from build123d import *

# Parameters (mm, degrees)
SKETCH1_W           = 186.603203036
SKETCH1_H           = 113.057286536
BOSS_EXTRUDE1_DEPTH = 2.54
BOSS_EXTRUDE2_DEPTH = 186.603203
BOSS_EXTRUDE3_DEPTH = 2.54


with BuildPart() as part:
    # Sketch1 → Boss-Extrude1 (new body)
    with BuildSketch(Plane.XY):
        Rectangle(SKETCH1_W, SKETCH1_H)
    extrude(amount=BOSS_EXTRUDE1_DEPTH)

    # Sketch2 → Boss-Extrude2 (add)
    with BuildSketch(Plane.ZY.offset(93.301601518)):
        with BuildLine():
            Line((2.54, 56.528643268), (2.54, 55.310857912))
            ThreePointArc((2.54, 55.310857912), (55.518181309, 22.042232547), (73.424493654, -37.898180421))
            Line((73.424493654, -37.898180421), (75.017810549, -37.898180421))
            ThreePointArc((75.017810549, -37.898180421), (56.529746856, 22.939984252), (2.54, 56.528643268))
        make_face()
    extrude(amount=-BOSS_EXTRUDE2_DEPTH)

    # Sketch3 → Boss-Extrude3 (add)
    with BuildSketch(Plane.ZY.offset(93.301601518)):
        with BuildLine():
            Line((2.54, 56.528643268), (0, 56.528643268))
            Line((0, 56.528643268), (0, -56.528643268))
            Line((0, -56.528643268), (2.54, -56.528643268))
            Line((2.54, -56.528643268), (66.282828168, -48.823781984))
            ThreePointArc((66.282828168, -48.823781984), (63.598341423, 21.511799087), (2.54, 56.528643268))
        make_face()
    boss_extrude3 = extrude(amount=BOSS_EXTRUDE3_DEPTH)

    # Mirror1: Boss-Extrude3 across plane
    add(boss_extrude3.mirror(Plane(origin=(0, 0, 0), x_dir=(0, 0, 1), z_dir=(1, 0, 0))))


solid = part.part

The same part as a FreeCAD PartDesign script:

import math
import FreeCAD as App
import Part
import Sketcher

V = App.Vector
Q = App.Units.Quantity


def add_polygon(sketch, points):
    """Adds a closed chain of lines whose ends are joined by coincident constraints."""
    first, n = sketch.GeometryCount, len(points)
    for a, b in zip(points, points[1:] + points[:1]):
        sketch.addGeometry(Part.LineSegment(App.Vector(*a, 0), App.Vector(*b, 0)), False)
    for i in range(n):
        sketch.addConstraint(Sketcher.Constraint("Coincident", first + i, 2, first + (i + 1) % n, 1))

doc = App.newDocument("Part")
body = doc.addObject("PartDesign::Body", "Body")

# Sketch on XY plane
sketch1 = body.newObject("Sketcher::SketchObject", "Sketch")
sketch1.AttachmentSupport = (doc.getObject("XY_Plane"), [""])
sketch1.MapMode = "FlatFace"
add_polygon(sketch1, [(-93, 57), (-93, -57), (93, -57), (93, 57)])  # lines 0-3
sketch1.addConstraint(Sketcher.Constraint("Vertical", 0))
sketch1.addConstraint(Sketcher.Constraint("Horizontal", 1))
sketch1.addConstraint(Sketcher.Constraint("Vertical", 2))
sketch1.addConstraint(Sketcher.Constraint("Horizontal", 3))
sketch1.addConstraint(Sketcher.Constraint("Symmetric", 0, 2, 2, 2, -1, 1))
sketch1.addConstraint(Sketcher.Constraint("DistanceX", 0, 2, -1, 1, Q("93.301602 mm")))
sketch1.addConstraint(Sketcher.Constraint("DistanceY", 0, 2, 0, 1, Q("113.057287 mm")))
pad1 = body.newObject("PartDesign::Pad", "Pad")
pad1.Profile = sketch1
pad1.Length = Q("0.1 in")

# Sketch on YZ plane
sketch2 = body.newObject("Sketcher::SketchObject", "Sketch001")
sketch2.AttachmentSupport = (doc.getObject("YZ_Plane"), [""])
sketch2.MapMode = "FlatFace"
sketch2.AttachmentOffset = App.Placement(V(0, 0, -93.301602), App.Rotation())
sketch2.addGeometry(Part.LineSegment(V(56.5, 2.5, 0), V(55.3, 2.5, 0)), False)
sketch2.addGeometry(Part.ArcOfCircle(Part.Circle(V(-31.7, -15.2, 0), V(0, 0, 1), 88.8), math.radians(12), math.radians(94)), False)
sketch2.addGeometry(Part.LineSegment(V(-37.9, 73.4, 0), V(-37.9, 75, 0)), False)
sketch2.addGeometry(Part.ArcOfCircle(Part.Circle(V(-32.1, -15.1, 0), V(0, 0, 1), 90.3), math.radians(11), math.radians(94)), False)
sketch2.addConstraint(Sketcher.Constraint("Coincident", 0, 2, 1, 1))
sketch2.addConstraint(Sketcher.Constraint("Coincident", 1, 2, 2, 1))
sketch2.addConstraint(Sketcher.Constraint("Coincident", 2, 2, 3, 2))
sketch2.addConstraint(Sketcher.Constraint("Coincident", 3, 1, 0, 1))
sketch2.addConstraint(Sketcher.Constraint("Horizontal", 0))
sketch2.addConstraint(Sketcher.Constraint("Vertical", 2))
sketch2.addConstraint(Sketcher.Constraint("DistanceY", -1, 1, 0, 2, Q("0.1 in")))
sketch2.addConstraint(Sketcher.Constraint("Radius", 1, Q("88.818688 mm")))
sketch2.addConstraint(Sketcher.Constraint("Radius", 3, Q("90.340671 mm")))
sketch2.addConstraint(Sketcher.Constraint("DistanceX", 0, 2, 0, 1, Q("1.217785 mm")))
sketch2.addConstraint(Sketcher.Constraint("DistanceY", 2, 1, 2, 2, Q("1.593317 mm")))
sketch2.addConstraint(Sketcher.Constraint("DistanceX", 3, 3, -1, 1, Q("32.06623 mm")))
sketch2.addConstraint(Sketcher.Constraint("DistanceX", 1, 2, -1, 1, Q("37.89818 mm")))
sketch2.addConstraint(Sketcher.Constraint("DistanceY", -1, 1, 2, 2, Q("75.017811 mm")))
pad2 = body.newObject("PartDesign::Pad", "Pad001")
pad2.Profile = sketch2
pad2.Length = 186.603203

# Sketch on YZ plane
sketch3 = body.newObject("Sketcher::SketchObject", "Sketch002")
sketch3.AttachmentSupport = (doc.getObject("YZ_Plane"), [""])
sketch3.MapMode = "FlatFace"
sketch3.AttachmentOffset = App.Placement(V(0, 0, -93.301602), App.Rotation())
sketch3.addGeometry(Part.LineSegment(V(56.5, 2.5, 0), V(56.5, 0, 0)), False)
sketch3.addGeometry(Part.LineSegment(V(56.5, 0, 0), V(-56.5, 0, 0)), False)
sketch3.addGeometry(Part.LineSegment(V(-56.5, 0, 0), V(-56.5, 2.5, 0)), False)
sketch3.addGeometry(Part.LineSegment(V(-56.5, 2.5, 0), V(-48.8, 66.3, 0)), False)
sketch3.addGeometry(Part.ArcOfCircle(Part.Circle(V(-16.1, 1.5, 0), V(0, 0, 1), 72.6), math.radians(1), math.radians(117)), False)
sketch3.addConstraint(Sketcher.Constraint("Coincident", 0, 2, 1, 1))
sketch3.addConstraint(Sketcher.Constraint("Coincident", 1, 2, 2, 1))
sketch3.addConstraint(Sketcher.Constraint("Coincident", 2, 2, 3, 1))
sketch3.addConstraint(Sketcher.Constraint("Coincident", 3, 2, 4, 2))
sketch3.addConstraint(Sketcher.Constraint("Coincident", 4, 1, 0, 1))
sketch3.addConstraint(Sketcher.Constraint("Vertical", 0))
sketch3.addConstraint(Sketcher.Constraint("Horizontal", 1))
sketch3.addConstraint(Sketcher.Constraint("Vertical", 2))
sketch3.addConstraint(Sketcher.Constraint("Symmetric", 0, 2, 1, 2, -1, 1))
sketch3.addConstraint(Sketcher.Constraint("Horizontal", 2, 2, 4, 1))
sketch3.addConstraint(Sketcher.Constraint("DistanceY", 0, 2, 0, 1, Q("0.1 in")))
sketch3.addConstraint(Sketcher.Constraint("Radius", 4, Q("72.61498 mm")))
sketch3.addConstraint(Sketcher.Constraint("Distance", 3, Q("64.206799 mm")))
sketch3.addConstraint(Sketcher.Constraint("DistanceX", 4, 3, 0, 2, Q("72.607099 mm")))
sketch3.addConstraint(Sketcher.Constraint("DistanceX", 1, 2, 1, 1, Q("113.057287 mm")))
pad3 = body.newObject("PartDesign::Pad", "Pad002")
pad3.Profile = sketch3
pad3.Length = Q("0.1 in")
pad3.Reversed = True
doc.recompute()

mirrored = body.newObject("PartDesign::Mirrored", "Mirrored")
mirrored.Originals = [pad3]
mirrored.MirrorPlane = (doc.getObject("YZ_Plane"), [""])
body.Tip = mirrored

doc.recompute()
